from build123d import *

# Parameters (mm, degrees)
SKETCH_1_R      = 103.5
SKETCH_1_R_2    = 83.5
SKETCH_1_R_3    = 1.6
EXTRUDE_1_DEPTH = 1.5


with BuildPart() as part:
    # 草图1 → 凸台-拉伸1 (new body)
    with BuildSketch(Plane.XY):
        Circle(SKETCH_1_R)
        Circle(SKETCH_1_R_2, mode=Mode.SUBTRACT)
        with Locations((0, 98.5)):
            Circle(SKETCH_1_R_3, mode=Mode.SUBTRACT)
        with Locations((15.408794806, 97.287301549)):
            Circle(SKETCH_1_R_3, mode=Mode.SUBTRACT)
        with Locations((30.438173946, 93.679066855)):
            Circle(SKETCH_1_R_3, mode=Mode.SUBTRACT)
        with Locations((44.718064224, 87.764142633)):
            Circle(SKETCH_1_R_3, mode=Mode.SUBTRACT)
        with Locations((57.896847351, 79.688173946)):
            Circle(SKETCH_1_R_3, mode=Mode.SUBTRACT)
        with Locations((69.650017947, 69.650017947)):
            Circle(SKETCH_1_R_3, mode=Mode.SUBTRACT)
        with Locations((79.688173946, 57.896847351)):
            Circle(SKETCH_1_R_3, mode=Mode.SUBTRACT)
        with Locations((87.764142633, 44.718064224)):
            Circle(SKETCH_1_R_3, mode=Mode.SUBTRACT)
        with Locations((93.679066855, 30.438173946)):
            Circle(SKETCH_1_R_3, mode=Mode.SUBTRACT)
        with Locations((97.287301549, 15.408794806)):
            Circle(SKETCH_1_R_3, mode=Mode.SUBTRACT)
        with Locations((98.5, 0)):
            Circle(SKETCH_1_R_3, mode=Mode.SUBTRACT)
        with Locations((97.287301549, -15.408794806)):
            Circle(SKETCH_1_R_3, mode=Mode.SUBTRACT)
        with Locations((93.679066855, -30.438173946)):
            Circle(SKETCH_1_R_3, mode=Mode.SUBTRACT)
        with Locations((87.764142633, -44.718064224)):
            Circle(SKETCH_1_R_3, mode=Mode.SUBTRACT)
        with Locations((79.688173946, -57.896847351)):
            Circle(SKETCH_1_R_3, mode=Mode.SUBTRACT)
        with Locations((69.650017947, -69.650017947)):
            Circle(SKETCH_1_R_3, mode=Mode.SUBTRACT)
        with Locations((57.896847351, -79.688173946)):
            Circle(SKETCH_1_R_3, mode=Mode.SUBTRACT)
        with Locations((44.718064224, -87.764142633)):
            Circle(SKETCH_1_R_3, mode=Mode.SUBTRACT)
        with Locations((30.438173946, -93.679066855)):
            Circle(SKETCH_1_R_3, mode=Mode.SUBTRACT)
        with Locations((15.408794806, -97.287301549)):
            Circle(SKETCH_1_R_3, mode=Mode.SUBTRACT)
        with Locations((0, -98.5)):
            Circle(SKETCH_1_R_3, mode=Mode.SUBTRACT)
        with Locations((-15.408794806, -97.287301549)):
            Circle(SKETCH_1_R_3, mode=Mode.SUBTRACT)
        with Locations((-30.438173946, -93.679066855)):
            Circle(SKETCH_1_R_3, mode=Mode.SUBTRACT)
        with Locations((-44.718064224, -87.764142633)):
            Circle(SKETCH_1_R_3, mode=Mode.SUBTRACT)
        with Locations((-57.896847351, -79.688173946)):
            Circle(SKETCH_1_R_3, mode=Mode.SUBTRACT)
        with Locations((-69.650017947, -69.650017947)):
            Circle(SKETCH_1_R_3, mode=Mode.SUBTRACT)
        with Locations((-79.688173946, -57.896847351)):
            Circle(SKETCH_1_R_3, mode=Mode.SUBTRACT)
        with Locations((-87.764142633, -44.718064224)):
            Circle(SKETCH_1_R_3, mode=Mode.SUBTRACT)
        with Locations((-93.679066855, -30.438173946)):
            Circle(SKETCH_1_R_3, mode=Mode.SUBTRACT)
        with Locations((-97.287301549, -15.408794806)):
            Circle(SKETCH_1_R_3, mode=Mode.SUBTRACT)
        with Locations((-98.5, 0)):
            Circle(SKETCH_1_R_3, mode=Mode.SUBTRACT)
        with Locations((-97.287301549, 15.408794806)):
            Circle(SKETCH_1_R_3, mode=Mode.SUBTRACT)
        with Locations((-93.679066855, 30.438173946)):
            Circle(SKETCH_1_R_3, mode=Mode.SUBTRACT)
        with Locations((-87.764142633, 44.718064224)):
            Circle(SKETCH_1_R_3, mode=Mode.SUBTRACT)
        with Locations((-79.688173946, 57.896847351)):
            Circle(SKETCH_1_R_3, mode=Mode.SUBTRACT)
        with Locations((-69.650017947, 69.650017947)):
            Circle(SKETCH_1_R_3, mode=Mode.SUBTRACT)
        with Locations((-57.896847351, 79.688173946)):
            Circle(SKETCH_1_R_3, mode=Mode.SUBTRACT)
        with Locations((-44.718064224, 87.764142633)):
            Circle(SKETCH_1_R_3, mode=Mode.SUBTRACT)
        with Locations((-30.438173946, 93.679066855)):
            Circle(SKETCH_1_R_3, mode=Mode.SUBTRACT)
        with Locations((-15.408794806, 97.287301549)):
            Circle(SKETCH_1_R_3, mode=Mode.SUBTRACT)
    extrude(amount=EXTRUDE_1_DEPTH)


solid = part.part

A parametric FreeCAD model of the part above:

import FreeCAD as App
import Part
import Sketcher
from FreeCAD import Vector
Q = App.Units.Quantity

doc = App.newDocument("Part")
params = doc.addObject("Spreadsheet::Sheet", "Params")
for row, (alias, value) in enumerate([
    ("sketch1_diameter", "207 mm"),
    ("sketch1_diameter2", "167 mm"),
    ("sketch1_diameter3", "3.2 mm"),
    ("pad1_length", "1.5 mm"),
], start=1):
    params.set(f"A{row}", alias)
    params.set(f"B{row}", "=" + value)
    params.setAlias(f"B{row}", alias)

body = doc.addObject("PartDesign::Body", "Body")

sketch1 = body.newObject("Sketcher::SketchObject", "Sketch")
sketch1.AttachmentSupport = (doc.getObject("XY_Plane"), [""])
sketch1.MapMode = "FlatFace"
sketch1.addGeometry([
    Part.Circle(Vector(0, 0, 0), Vector(0, 0, 1), 103.5),
    Part.Circle(Vector(-57.896847, -79.688174, 0), Vector(0, 0, 1), 1.6),
    Part.Circle(Vector(-79.688174, -57.896847, 0), Vector(0, 0, 1), 1.6),
    Part.Circle(Vector(-69.650018, -69.650018, 0), Vector(0, 0, 1), 1.6),
    Part.Circle(Vector(-44.718064, -87.764143, 0), Vector(0, 0, 1), 1.6),
    Part.Circle(Vector(-30.438174, -93.679067, 0), Vector(0, 0, 1), 1.6),
    Part.Circle(Vector(-15.408795, -97.287302, 0), Vector(0, 0, 1), 1.6),
    Part.Circle(Vector(0, -98.5, 0), Vector(0, 0, 1), 1.6),
    Part.Circle(Vector(-87.764143, -44.718064, 0), Vector(0, 0, 1), 1.6),
    Part.Circle(Vector(-93.679067, -30.438174, 0), Vector(0, 0, 1), 1.6),
    Part.Circle(Vector(-97.287302, -15.408795, 0), Vector(0, 0, 1), 1.6),
    Part.Circle(Vector(-98.5, 0, 0), Vector(0, 0, 1), 1.6),
    Part.Circle(Vector(0, 0, 0), Vector(0, 0, 1), 83.5),
    Part.Circle(Vector(15.408795, -97.287302, 0), Vector(0, 0, 1), 1.6),
    Part.Circle(Vector(30.438174, -93.679067, 0), Vector(0, 0, 1), 1.6),
    Part.Circle(Vector(44.718064, -87.764143, 0), Vector(0, 0, 1), 1.6),
    Part.Circle(Vector(57.896847, -79.688174, 0), Vector(0, 0, 1), 1.6),
    Part.Circle(Vector(69.650018, -69.650018, 0), Vector(0, 0, 1), 1.6),
    Part.Circle(Vector(79.688174, -57.896847, 0), Vector(0, 0, 1), 1.6),
    Part.Circle(Vector(87.764143, -44.718064, 0), Vector(0, 0, 1), 1.6),
    Part.Circle(Vector(93.679067, -30.438174, 0), Vector(0, 0, 1), 1.6),
    Part.Circle(Vector(97.287302, -15.408795, 0), Vector(0, 0, 1), 1.6),
    Part.Circle(Vector(98.5, 0, 0), Vector(0, 0, 1), 1.6),
    Part.Circle(Vector(-97.287302, 15.408795, 0), Vector(0, 0, 1), 1.6),
    Part.Circle(Vector(-93.679067, 30.438174, 0), Vector(0, 0, 1), 1.6),
    Part.Circle(Vector(-87.764143, 44.718064, 0), Vector(0, 0, 1), 1.6),
    Part.Circle(Vector(-79.688174, 57.896847, 0), Vector(0, 0, 1), 1.6),
    Part.Circle(Vector(-69.650018, 69.650018, 0), Vector(0, 0, 1), 1.6),
    Part.Circle(Vector(-57.896847, 79.688174, 0), Vector(0, 0, 1), 1.6),
    Part.Circle(Vector(-44.718064, 87.764143, 0), Vector(0, 0, 1), 1.6),
    Part.Circle(Vector(-30.438174, 93.679067, 0), Vector(0, 0, 1), 1.6),
    Part.Circle(Vector(-15.408795, 97.287302, 0), Vector(0, 0, 1), 1.6),
    Part.Circle(Vector(0, 98.5, 0), Vector(0, 0, 1), 1.6),
    Part.Circle(Vector(97.287302, 15.408795, 0), Vector(0, 0, 1), 1.6),
    Part.Circle(Vector(93.679067, 30.438174, 0), Vector(0, 0, 1), 1.6),
    Part.Circle(Vector(87.764143, 44.718064, 0), Vector(0, 0, 1), 1.6),
    Part.Circle(Vector(15.408795, 97.287302, 0), Vector(0, 0, 1), 1.6),
    Part.Circle(Vector(30.438174, 93.679067, 0), Vector(0, 0, 1), 1.6),
    Part.Circle(Vector(44.718064, 87.764143, 0), Vector(0, 0, 1), 1.6),
    Part.Circle(Vector(69.650018, 69.650018, 0), Vector(0, 0, 1), 1.6),
    Part.Circle(Vector(79.688174, 57.896847, 0), Vector(0, 0, 1), 1.6),
    Part.Circle(Vector(57.896847, 79.688174, 0), Vector(0, 0, 1), 1.6),
], False)
sketch1.addConstraint([
    Sketcher.Constraint("Coincident", 0, 3, -1, 1),
    Sketcher.Constraint("Coincident", 12, 3, -1, 1),
    Sketcher.Constraint("Equal", 1, 2),
    Sketcher.Constraint("Equal", 2, 3),
    Sketcher.Constraint("Equal", 3, 4),
    Sketcher.Constraint("Equal", 4, 5),
    Sketcher.Constraint("Equal", 5, 6),
    Sketcher.Constraint("Equal", 6, 7),
    Sketcher.Constraint("Equal", 7, 8),
    Sketcher.Constraint("Equal", 8, 9),
    Sketcher.Constraint("Equal", 9, 10),
    Sketcher.Constraint("Equal", 10, 11),
    Sketcher.Constraint("Equal", 11, 13),
    Sketcher.Constraint("Equal", 13, 14),
    Sketcher.Constraint("Equal", 14, 15),
    Sketcher.Constraint("Equal", 15, 16),
    Sketcher.Constraint("Equal", 16, 17),
    Sketcher.Constraint("Equal", 17, 18),
    Sketcher.Constraint("Equal", 18, 19),
    Sketcher.Constraint("Equal", 19, 20),
    Sketcher.Constraint("Equal", 20, 21),
    Sketcher.Constraint("Equal", 21, 22),
    Sketcher.Constraint("Equal", 22, 23),
    Sketcher.Constraint("Equal", 23, 24),
    Sketcher.Constraint("Equal", 24, 25),
    Sketcher.Constraint("Equal", 25, 26),
    Sketcher.Constraint("Equal", 26, 27),
    Sketcher.Constraint("Equal", 27, 28),
    Sketcher.Constraint("Equal", 28, 29),
    Sketcher.Constraint("Equal", 29, 30),
    Sketcher.Constraint("Equal", 30, 31),
    Sketcher.Constraint("Equal", 31, 32),
    Sketcher.Constraint("Equal", 32, 33),
    Sketcher.Constraint("Equal", 33, 34),
    Sketcher.Constraint("Equal", 34, 35),
    Sketcher.Constraint("Equal", 35, 36),
    Sketcher.Constraint("Equal", 36, 37),
    Sketcher.Constraint("Equal", 37, 38),
    Sketcher.Constraint("Equal", 38, 39),
    Sketcher.Constraint("Equal", 39, 40),
    Sketcher.Constraint("Equal", 40, 41),
    Sketcher.Constraint("Symmetric", 11, 3, 22, 3, -1, 1),
    Sketcher.Constraint("Symmetric", 21, 3, 23, 3, -1, 1),
    Sketcher.Constraint("Symmetric", 20, 3, 24, 3, -1, 1),
    Sketcher.Constraint("Symmetric", 19, 3, 25, 3, -1, 1),
    Sketcher.Constraint("Symmetric", 18, 3, 26, 3, -1, 1),
    Sketcher.Constraint("Symmetric", 17, 3, 27, 3, -1, 1),
    Sketcher.Constraint("Symmetric", 16, 3, 28, 3, -1, 1),
    Sketcher.Constraint("Symmetric", 15, 3, 29, 3, -1, 1),
    Sketcher.Constraint("Symmetric", 14, 3, 30, 3, -1, 1),
    Sketcher.Constraint("Symmetric", 13, 3, 31, 3, -1, 1),
    Sketcher.Constraint("Symmetric", 7, 3, 32, 3, -1, 1),
    Sketcher.Constraint("Symmetric", 10, 3, 33, 3, -1, 1),
    Sketcher.Constraint("Symmetric", 9, 3, 34, 3, -1, 1),
    Sketcher.Constraint("Symmetric", 8, 3, 35, 3, -1, 1),
    Sketcher.Constraint("Symmetric", 6, 3, 36, 3, -1, 1),
    Sketcher.Constraint("Symmetric", 5, 3, 37, 3, -1, 1),
    Sketcher.Constraint("Symmetric", 4, 3, 38, 3, -1, 1),
    Sketcher.Constraint("Symmetric", 3, 3, 39, 3, -1, 1),
    Sketcher.Constraint("Symmetric", 2, 3, 40, 3, -1, 1),
    Sketcher.Constraint("Symmetric", 1, 3, 41, 3, -1, 1),
    Sketcher.Constraint("Symmetric", 6, 3, 13, 3, -2),
    Sketcher.Constraint("Symmetric", 5, 3, 14, 3, -2),
    Sketcher.Constraint("Symmetric", 4, 3, 15, 3, -2),
    Sketcher.Constraint("Symmetric", 1, 3, 16, 3, -2),
    Sketcher.Constraint("Symmetric", 3, 3, 17, 3, -2),
    Sketcher.Constraint("Symmetric", 2, 3, 18, 3, -2),
    Sketcher.Constraint("Symmetric", 8, 3, 19, 3, -2),
    Sketcher.Constraint("Symmetric", 9, 3, 20, 3, -2),
    Sketcher.Constraint("Symmetric", 10, 3, 21, 3, -2),
    Sketcher.Constraint("PointOnObject", 7, 3, -2),
    Sketcher.Constraint("PointOnObject", 11, 3, -1),
    Sketcher.Constraint("Diameter", 0, Q("207 mm")),
    Sketcher.Constraint("Diameter", 12, Q("167 mm")),
    Sketcher.Constraint("Diameter", 1, Q("3.2 mm")),
    Sketcher.Constraint("DistanceY", 7, 3, -1, 1, Q("98.5 mm")),
    Sketcher.Constraint("DistanceX", 11, 3, -1, 1, Q("98.5 mm")),
    Sketcher.Constraint("DistanceX", 2, 3, 5, 3, Q("49.25 mm")),
    Sketcher.Constraint("DistanceY", 1, 3, 9, 3, Q("49.25 mm")),
    Sketcher.Constraint("DistanceY", 6, 3, -1, 1, Q("97.287302 mm")),
    Sketcher.Constraint("DistanceX", 10, 3, -1, 1, Q("97.287302 mm")),
    Sketcher.Constraint("DistanceX", 3, 3, 1, 3, Q("11.753171 mm")),
    Sketcher.Constraint("DistanceY", 3, 3, 2, 3, Q("11.753171 mm")),
    Sketcher.Constraint("DistanceY", 4, 3, 1, 3, Q("8.075969 mm")),
    Sketcher.Constraint("DistanceX", 2, 3, 4, 3, Q("34.97011 mm")),
    Sketcher.Constraint("DistanceY", 5, 3, 3, 3, Q("24.029049 mm")),
    Sketcher.Constraint("DistanceX", 5, 3, 6, 3, Q("15.029379 mm")),
    Sketcher.Constraint("DistanceY", 6, 3, 4, 3, Q("9.523159 mm")),
    Sketcher.Constraint("DistanceX", 8, 3, 2, 3, Q("8.075969 mm")),
    Sketcher.Constraint("DistanceY", 1, 3, 8, 3, Q("34.97011 mm")),
    Sketcher.Constraint("DistanceX", 9, 3, 3, 3, Q("24.029049 mm")),
    Sketcher.Constraint("DistanceY", 9, 3, 10, 3, Q("15.029379 mm")),
    Sketcher.Constraint("DistanceX", 10, 3, 8, 3, Q("9.523159 mm")),
    Sketcher.Constraint("DistanceX", 1, 3, -1, 1, Q("57.896847 mm")),
    Sketcher.Constraint("DistanceY", 2, 3, -1, 1, Q("57.896847 mm")),
])
sketch1.setExpression("Constraints[72]", "Params.sketch1_diameter")
sketch1.setExpression("Constraints[73]", "Params.sketch1_diameter2")
sketch1.setExpression("Constraints[74]", "Params.sketch1_diameter3")
pad1 = body.newObject("PartDesign::Pad", "Pad")
pad1.Profile = sketch1
pad1.setExpression("Length", "Params.pad1_length")

doc.recompute()
